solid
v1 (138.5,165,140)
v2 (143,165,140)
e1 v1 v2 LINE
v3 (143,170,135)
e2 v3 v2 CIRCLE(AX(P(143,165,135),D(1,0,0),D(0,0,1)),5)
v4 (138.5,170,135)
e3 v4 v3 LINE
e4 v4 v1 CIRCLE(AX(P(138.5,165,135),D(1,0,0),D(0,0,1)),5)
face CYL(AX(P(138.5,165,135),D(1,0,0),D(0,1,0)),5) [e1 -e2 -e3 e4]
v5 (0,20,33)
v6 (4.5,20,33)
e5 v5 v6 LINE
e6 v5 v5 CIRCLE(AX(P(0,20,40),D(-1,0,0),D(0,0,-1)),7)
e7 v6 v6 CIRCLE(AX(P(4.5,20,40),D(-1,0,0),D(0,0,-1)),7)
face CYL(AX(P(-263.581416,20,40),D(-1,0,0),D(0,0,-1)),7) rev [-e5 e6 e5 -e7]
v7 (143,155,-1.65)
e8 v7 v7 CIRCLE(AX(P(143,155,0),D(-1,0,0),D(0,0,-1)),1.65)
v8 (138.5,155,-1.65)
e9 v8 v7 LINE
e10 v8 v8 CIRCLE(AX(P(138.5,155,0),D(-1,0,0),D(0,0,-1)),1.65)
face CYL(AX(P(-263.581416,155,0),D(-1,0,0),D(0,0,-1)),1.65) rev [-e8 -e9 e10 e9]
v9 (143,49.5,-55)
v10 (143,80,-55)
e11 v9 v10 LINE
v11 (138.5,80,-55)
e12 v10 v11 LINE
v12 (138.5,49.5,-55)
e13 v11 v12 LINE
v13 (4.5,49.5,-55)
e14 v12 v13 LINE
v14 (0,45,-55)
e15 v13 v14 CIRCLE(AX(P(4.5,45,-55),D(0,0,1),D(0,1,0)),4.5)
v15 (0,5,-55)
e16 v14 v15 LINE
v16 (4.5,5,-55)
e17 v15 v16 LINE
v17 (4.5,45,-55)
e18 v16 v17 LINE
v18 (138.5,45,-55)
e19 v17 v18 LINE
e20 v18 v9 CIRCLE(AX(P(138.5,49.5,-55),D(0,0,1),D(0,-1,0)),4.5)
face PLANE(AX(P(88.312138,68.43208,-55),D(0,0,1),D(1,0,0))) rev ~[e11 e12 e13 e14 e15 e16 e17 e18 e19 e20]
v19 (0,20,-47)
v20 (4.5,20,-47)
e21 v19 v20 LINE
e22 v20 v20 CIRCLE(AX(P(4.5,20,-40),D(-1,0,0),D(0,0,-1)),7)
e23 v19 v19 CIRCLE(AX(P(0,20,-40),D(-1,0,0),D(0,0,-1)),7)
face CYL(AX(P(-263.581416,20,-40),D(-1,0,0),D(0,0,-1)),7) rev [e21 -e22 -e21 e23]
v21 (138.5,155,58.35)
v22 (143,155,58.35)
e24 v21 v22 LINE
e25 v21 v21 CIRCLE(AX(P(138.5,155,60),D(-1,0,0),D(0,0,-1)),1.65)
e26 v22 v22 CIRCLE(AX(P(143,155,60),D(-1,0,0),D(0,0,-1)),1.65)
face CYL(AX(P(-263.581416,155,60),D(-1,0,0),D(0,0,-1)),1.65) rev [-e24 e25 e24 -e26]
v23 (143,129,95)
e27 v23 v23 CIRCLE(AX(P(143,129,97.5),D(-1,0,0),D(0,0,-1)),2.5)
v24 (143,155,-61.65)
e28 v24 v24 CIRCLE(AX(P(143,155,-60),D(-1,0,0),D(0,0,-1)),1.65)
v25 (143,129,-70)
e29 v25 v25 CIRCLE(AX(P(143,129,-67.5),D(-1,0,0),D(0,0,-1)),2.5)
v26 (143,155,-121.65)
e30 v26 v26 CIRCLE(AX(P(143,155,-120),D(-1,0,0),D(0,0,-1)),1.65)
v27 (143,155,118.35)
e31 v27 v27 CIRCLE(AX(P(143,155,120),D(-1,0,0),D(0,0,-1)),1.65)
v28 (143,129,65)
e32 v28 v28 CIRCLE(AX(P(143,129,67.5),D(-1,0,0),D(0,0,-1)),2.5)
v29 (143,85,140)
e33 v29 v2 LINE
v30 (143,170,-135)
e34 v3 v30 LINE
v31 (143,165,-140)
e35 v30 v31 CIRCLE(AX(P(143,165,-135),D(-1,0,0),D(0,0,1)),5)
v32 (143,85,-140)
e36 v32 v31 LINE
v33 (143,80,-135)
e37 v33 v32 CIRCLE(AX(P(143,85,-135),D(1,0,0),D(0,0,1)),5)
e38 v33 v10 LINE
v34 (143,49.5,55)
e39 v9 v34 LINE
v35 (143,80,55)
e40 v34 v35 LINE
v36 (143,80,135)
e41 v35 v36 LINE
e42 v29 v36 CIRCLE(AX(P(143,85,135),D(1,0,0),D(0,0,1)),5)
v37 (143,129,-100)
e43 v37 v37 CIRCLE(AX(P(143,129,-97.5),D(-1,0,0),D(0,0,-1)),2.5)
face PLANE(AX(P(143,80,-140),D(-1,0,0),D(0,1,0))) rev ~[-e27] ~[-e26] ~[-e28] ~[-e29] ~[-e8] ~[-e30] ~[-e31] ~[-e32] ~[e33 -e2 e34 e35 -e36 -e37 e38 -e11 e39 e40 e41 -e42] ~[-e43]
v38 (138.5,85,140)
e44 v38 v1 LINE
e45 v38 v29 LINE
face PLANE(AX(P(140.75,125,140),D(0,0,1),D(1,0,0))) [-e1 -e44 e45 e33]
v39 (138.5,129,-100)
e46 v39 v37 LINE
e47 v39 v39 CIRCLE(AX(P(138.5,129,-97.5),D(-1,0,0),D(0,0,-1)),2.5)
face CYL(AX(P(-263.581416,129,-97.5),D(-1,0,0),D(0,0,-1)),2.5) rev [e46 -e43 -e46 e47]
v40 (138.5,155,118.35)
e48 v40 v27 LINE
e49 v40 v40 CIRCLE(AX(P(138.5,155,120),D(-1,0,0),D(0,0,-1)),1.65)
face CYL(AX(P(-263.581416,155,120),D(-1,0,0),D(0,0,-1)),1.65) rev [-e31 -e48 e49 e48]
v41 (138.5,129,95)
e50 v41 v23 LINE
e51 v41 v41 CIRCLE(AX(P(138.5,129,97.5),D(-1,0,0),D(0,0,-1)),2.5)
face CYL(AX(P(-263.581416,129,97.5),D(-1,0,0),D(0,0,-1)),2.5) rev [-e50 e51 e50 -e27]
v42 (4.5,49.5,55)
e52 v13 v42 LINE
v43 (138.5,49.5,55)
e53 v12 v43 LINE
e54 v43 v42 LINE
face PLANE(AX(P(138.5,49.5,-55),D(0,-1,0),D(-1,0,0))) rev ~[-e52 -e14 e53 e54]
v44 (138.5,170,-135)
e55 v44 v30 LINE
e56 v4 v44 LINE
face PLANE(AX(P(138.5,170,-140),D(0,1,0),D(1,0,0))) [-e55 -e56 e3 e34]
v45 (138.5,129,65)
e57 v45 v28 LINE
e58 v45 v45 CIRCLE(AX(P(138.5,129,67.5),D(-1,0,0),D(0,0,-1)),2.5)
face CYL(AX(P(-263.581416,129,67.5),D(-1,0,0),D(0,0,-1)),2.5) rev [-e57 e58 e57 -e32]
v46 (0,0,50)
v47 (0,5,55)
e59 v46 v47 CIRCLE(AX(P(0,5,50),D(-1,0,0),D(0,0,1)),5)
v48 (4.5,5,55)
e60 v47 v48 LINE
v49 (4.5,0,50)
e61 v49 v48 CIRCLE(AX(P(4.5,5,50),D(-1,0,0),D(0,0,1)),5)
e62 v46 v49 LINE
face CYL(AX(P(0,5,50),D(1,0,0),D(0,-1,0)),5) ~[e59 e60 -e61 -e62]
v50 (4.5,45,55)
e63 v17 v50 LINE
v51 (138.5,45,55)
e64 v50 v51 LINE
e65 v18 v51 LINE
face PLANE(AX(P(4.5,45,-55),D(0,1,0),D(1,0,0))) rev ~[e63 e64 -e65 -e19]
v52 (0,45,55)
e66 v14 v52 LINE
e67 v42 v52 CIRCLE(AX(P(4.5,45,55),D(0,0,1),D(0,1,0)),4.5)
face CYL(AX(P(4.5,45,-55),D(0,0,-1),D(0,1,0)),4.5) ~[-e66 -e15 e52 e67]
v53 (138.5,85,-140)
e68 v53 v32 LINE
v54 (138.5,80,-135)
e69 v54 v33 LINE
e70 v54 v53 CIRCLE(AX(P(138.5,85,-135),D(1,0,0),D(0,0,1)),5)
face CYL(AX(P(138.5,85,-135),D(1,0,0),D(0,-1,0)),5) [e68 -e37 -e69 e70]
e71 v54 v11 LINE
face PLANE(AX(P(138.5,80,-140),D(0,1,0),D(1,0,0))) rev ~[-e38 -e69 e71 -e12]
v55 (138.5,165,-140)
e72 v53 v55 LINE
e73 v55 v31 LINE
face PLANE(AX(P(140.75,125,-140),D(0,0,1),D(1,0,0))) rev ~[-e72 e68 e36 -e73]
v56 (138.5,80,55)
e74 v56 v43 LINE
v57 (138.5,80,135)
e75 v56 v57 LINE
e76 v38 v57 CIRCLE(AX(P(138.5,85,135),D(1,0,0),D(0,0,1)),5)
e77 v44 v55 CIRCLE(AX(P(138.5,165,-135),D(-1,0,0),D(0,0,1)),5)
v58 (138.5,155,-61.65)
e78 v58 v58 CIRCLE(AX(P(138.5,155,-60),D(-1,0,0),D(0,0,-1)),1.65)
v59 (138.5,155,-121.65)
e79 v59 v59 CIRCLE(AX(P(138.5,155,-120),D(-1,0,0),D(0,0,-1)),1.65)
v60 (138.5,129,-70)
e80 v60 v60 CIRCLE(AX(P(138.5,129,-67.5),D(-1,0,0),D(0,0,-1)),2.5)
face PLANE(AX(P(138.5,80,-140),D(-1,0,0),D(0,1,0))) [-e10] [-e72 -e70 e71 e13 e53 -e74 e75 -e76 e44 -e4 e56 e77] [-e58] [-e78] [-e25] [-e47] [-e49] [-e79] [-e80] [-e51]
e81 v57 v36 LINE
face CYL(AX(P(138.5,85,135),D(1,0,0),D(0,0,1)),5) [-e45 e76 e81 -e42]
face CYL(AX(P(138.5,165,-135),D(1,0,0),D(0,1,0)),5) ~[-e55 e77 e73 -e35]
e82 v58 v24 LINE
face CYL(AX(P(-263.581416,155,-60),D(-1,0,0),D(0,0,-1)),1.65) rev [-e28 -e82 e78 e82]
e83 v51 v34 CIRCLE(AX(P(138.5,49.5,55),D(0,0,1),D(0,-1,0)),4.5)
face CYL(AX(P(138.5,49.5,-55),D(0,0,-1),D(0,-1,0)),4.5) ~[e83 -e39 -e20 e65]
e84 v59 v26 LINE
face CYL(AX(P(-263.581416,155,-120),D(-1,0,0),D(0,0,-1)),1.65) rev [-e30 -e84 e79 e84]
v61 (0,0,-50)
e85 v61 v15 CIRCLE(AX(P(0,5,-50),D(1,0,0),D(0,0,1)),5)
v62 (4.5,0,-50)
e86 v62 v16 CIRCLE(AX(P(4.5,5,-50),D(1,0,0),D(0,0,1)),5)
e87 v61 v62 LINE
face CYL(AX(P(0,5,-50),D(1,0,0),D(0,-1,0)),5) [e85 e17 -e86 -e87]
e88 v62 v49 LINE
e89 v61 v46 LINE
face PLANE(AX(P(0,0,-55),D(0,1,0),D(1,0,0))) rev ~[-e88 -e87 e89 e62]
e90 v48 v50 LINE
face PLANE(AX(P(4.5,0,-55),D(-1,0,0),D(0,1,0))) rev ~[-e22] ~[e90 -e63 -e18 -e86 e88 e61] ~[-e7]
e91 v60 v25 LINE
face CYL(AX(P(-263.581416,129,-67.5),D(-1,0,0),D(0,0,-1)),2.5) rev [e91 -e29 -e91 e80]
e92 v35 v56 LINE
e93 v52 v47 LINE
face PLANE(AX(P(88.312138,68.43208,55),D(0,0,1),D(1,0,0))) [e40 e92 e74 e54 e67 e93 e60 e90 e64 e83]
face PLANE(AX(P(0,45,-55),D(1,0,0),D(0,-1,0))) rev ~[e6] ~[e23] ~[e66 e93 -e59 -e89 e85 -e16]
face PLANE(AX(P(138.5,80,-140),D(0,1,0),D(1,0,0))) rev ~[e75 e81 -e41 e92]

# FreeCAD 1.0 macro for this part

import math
import FreeCAD as App
import Part
import Sketcher

V = App.Vector
Q = App.Units.Quantity


def edges_at(feature, points):
    """Names of the edges that pass closest to the given points."""
    edges = feature.Shape.Edges
    near = lambda p: min(range(len(edges)), key=lambda i: edges[i].distToShape(Part.Vertex(*p))[0])
    return sorted({f"Edge{near(p) + 1}" for p in points})


def add_polygon(sketch, points):
    """Adds a closed chain of lines whose ends are joined by coincident constraints."""
    first, n = sketch.GeometryCount, len(points)
    for a, b in zip(points, points[1:] + points[:1]):
        sketch.addGeometry(Part.LineSegment(App.Vector(*a, 0), App.Vector(*b, 0)), False)
    for i in range(n):
        sketch.addConstraint(Sketcher.Constraint("Coincident", first + i, 2, first + (i + 1) % n, 1))

doc = App.newDocument("Part")
body = doc.addObject("PartDesign::Body", "Body")

sketch1 = body.newObject("Sketcher::SketchObject", "Sketch")
sketch1.AttachmentSupport = (doc.getObject("XY_Plane"), [""])
sketch1.MapMode = "FlatFace"
sketch1.addGeometry(Part.LineSegment(V(0, 0, 0), V(4.5, 0, 0)), False)
sketch1.addGeometry(Part.LineSegment(V(4.5, 0, 0), V(4.5, 45, 0)), False)
sketch1.addGeometry(Part.LineSegment(V(4.5, 45, 0), V(138.5, 45, 0)), False)
sketch1.addGeometry(Part.ArcOfCircle(Part.Circle(V(138.5, 49.5, 0), V(0, 0, 1), 4.5), math.radians(-90), math.radians(0)), False)
sketch1.addGeometry(Part.LineSegment(V(143, 49.5, 0), V(143, 170, 0)), False)
sketch1.addGeometry(Part.LineSegment(V(143, 170, 0), V(138.5, 170, 0)), False)
sketch1.addGeometry(Part.LineSegment(V(138.5, 170, 0), V(138.5, 49.5, 0)), False)
sketch1.addGeometry(Part.LineSegment(V(138.5, 49.5, 0), V(4.5, 49.5, 0)), False)
sketch1.addGeometry(Part.ArcOfCircle(Part.Circle(V(4.5, 45, 0), V(0, 0, 1), 4.5), math.radians(90), math.radians(180)), False)
sketch1.addGeometry(Part.LineSegment(V(0, 45, 0), V(0, 0, 0)), False)
sketch1.addConstraint(Sketcher.Constraint("Coincident", 0, 2, 1, 1))
sketch1.addConstraint(Sketcher.Constraint("Coincident", 1, 2, 2, 1))
sketch1.addConstraint(Sketcher.Constraint("Tangent", 2, 2, 3, 1))
sketch1.addConstraint(Sketcher.Constraint("Tangent", 3, 2, 4, 1))
sketch1.addConstraint(Sketcher.Constraint("Coincident", 4, 2, 5, 1))
sketch1.addConstraint(Sketcher.Constraint("Coincident", 5, 2, 6, 1))
sketch1.addConstraint(Sketcher.Constraint("Coincident", 6, 2, 7, 1))
sketch1.addConstraint(Sketcher.Constraint("Tangent", 7, 2, 8, 1))
sketch1.addConstraint(Sketcher.Constraint("Tangent", 8, 2, 9, 1))
sketch1.addConstraint(Sketcher.Constraint("Coincident", 9, 2, 0, 1))
sketch1.addConstraint(Sketcher.Constraint("Horizontal", 0))
sketch1.addConstraint(Sketcher.Constraint("Vertical", 1))
sketch1.addConstraint(Sketcher.Constraint("Horizontal", 2))
sketch1.addConstraint(Sketcher.Constraint("Vertical", 4))
sketch1.addConstraint(Sketcher.Constraint("Horizontal", 5))
sketch1.addConstraint(Sketcher.Constraint("Vertical", 6))
sketch1.addConstraint(Sketcher.Constraint("Horizontal", 7))
sketch1.addConstraint(Sketcher.Constraint("Vertical", 9))
sketch1.addConstraint(Sketcher.Constraint("Coincident", 9, 2, -1, 1))
sketch1.addConstraint(Sketcher.Constraint("Coincident", 1, 2, 8, 3))
sketch1.addConstraint(Sketcher.Constraint("Coincident", 6, 2, 3, 3))
sketch1.addConstraint(Sketcher.Constraint("Radius", 3, Q("4.5 mm")))
sketch1.addConstraint(Sketcher.Constraint("DistanceX", 2, 1, 2, 2, Q("134 mm")))
sketch1.addConstraint(Sketcher.Constraint("DistanceY", 1, 1, 1, 2, Q("45 mm")))
sketch1.addConstraint(Sketcher.Constraint("DistanceY", 4, 1, 4, 2, Q("120.5 mm")))
pad1 = body.newObject("PartDesign::Pad", "Pad")
pad1.Profile = sketch1
pad1.Type = "TwoLengths"
pad1.Length = 55
pad1.Length2 = 55

sketch2 = body.newObject("Sketcher::SketchObject", "Sketch001")
sketch2.AttachmentSupport = (doc.getObject("XY_Plane"), [""])
sketch2.MapMode = "FlatFace"
add_polygon(sketch2, [(138.5, 170), (138.5, 80), (143, 80), (143, 170)])
sketch2.addConstraint(Sketcher.Constraint("Vertical", 0))
sketch2.addConstraint(Sketcher.Constraint("Horizontal", 1))
sketch2.addConstraint(Sketcher.Constraint("Vertical", 2))
sketch2.addConstraint(Sketcher.Constraint("Horizontal", 3))
sketch2.addConstraint(Sketcher.Constraint("DistanceY", 0, 2, 0, 1, Q("90 mm")))
sketch2.addConstraint(Sketcher.Constraint("DistanceX", 1, 1, 1, 2, Q("4.5 mm")))
sketch2.addConstraint(Sketcher.Constraint("DistanceY", -1, 1, 0, 2, Q("80 mm")))
sketch2.addConstraint(Sketcher.Constraint("DistanceX", -1, 1, 1, 2, Q("143 mm")))
pad2 = body.newObject("PartDesign::Pad", "Pad001")
pad2.Profile = sketch2
pad2.Type = "TwoLengths"
pad2.Length = 140
pad2.Length2 = 140
doc.recompute()

fillet = body.newObject("PartDesign::Fillet", "Fillet")
fillet.Base = (pad2, edges_at(pad2, [
    (2.25, 0, -55),
    (140.75, 80, -140),
    (140.75, 170, -140),
    (140.75, 80, 140),
    (140.75, 170, 140),
    (2.25, 0, 55),
]))
fillet.Radius = 5

sketch3 = body.newObject("Sketcher::SketchObject", "Sketch002")
sketch3.AttachmentSupport = (doc.getObject("YZ_Plane"), [""])
sketch3.MapMode = "FlatFace"
sketch3.addGeometry(Part.Circle(V(20, -40, 0), V(0, 0, 1), 7), False)
sketch3.addGeometry(Part.Circle(V(20, 40, 0), V(0, 0, 1), 7), False)
sketch3.addGeometry(Part.Circle(V(155, 0, 0), V(0, 0, 1), 1.6), False)
sketch3.addGeometry(Part.Circle(V(155, -60, 0), V(0, 0, 1), 1.6), False)
sketch3.addGeometry(Part.Circle(V(155, 60, 0), V(0, 0, 1), 1.6), False)
sketch3.addGeometry(Part.Circle(V(155, -120, 0), V(0, 0, 1), 1.6), False)
sketch3.addGeometry(Part.Circle(V(155, 120, 0), V(0, 0, 1), 1.6), False)
sketch3.addGeometry(Part.Circle(V(129, -67.5, 0), V(0, 0, 1), 2.5), False)
sketch3.addGeometry(Part.Circle(V(129, 67.5, 0), V(0, 0, 1), 2.5), False)
sketch3.addGeometry(Part.Circle(V(129, -97.5, 0), V(0, 0, 1), 2.5), False)
sketch3.addGeometry(Part.Circle(V(129, 97.5, 0), V(0, 0, 1), 2.5), False)
sketch3.addConstraint(Sketcher.Constraint("Equal", 0, 1))
sketch3.addConstraint(Sketcher.Constraint("Equal", 2, 3))
sketch3.addConstraint(Sketcher.Constraint("Equal", 3, 4))
sketch3.addConstraint(Sketcher.Constraint("Equal", 4, 5))
sketch3.addConstraint(Sketcher.Constraint("Equal", 5, 6))
sketch3.addConstraint(Sketcher.Constraint("Equal", 7, 8))
sketch3.addConstraint(Sketcher.Constraint("Equal", 8, 9))
sketch3.addConstraint(Sketcher.Constraint("Equal", 9, 10))
sketch3.addConstraint(Sketcher.Constraint("Symmetric", 0, 3, 1, 3, -1))
sketch3.addConstraint(Sketcher.Constraint("Symmetric", 3, 3, 4, 3, -1))
sketch3.addConstraint(Sketcher.Constraint("Symmetric", 5, 3, 6, 3, -1))
sketch3.addConstraint(Sketcher.Constraint("Symmetric", 7, 3, 8, 3, -1))
sketch3.addConstraint(Sketcher.Constraint("Symmetric", 9, 3, 10, 3, -1))
sketch3.addConstraint(Sketcher.Constraint("PointOnObject", 2, 3, -1))
sketch3.addConstraint(Sketcher.Constraint("Vertical", 2, 3, 3, 3))
sketch3.addConstraint(Sketcher.Constraint("Vertical", 4, 3, 5, 3))
sketch3.addConstraint(Sketcher.Constraint("Vertical", 8, 3, 9, 3))
sketch3.addConstraint(Sketcher.Constraint("Diameter", 0, Q("14 mm")))
sketch3.addConstraint(Sketcher.Constraint("Diameter", 7, Q("5 mm")))
sketch3.addConstraint(Sketcher.Constraint("Diameter", 2, Q("3.3 mm")))
sketch3.addConstraint(Sketcher.Constraint("DistanceX", -1, 1, 0, 3, Q("20 mm")))
sketch3.addConstraint(Sketcher.Constraint("DistanceY", 0, 3, -1, 1, Q("40 mm")))
sketch3.addConstraint(Sketcher.Constraint("DistanceX", -1, 1, 2, 3, Q("155 mm")))
sketch3.addConstraint(Sketcher.Constraint("DistanceY", 3, 3, -1, 1, Q("60 mm")))
sketch3.addConstraint(Sketcher.Constraint("DistanceY", 5, 3, -1, 1, Q("120 mm")))
sketch3.addConstraint(Sketcher.Constraint("DistanceX", -1, 1, 7, 3, Q("129 mm")))
sketch3.addConstraint(Sketcher.Constraint("DistanceY", 9, 3, 7, 3, Q("30 mm")))
sketch3.addConstraint(Sketcher.Constraint("DistanceY", 7, 3, -1, 1, Q("67.5 mm")))
pocket1 = body.newObject("PartDesign::Pocket", "Pocket")
pocket1.Profile = sketch3
pocket1.Type = "ThroughAll"
pocket1.Midplane = True

doc.recompute()
